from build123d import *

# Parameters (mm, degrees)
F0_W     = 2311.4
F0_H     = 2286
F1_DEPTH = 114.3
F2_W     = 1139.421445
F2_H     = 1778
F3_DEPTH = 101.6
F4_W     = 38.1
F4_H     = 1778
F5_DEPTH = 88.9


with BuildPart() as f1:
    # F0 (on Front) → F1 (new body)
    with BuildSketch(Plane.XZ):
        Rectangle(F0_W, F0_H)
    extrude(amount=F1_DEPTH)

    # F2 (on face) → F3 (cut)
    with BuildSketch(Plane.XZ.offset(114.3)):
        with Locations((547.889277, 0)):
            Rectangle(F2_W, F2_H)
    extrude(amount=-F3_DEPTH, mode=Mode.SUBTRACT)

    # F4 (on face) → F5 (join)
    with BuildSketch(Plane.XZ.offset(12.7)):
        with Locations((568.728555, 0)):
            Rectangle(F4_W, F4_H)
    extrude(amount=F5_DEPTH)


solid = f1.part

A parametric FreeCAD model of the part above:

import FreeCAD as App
import Part
import Sketcher
Q = App.Units.Quantity

doc = App.newDocument("Part")
body = doc.addObject("PartDesign::Body", "Body")

# Sketch on XZ plane
sketch1 = body.newObject("Sketcher::SketchObject", "Sketch")
sketch1.AttachmentSupport = (doc.getObject("XZ_Plane"), [""])
sketch1.MapMode = "FlatFace"
sketch1.addGeometry([
    Part.LineSegment(App.Vector(-1155.7, 1143, 0), App.Vector(-1155.7, -1143, 0)),
    Part.LineSegment(App.Vector(-1155.7, -1143, 0), App.Vector(1155.7, -1143, 0)),
    Part.LineSegment(App.Vector(1155.7, -1143, 0), App.Vector(1155.7, 1143, 0)),
    Part.LineSegment(App.Vector(1155.7, 1143, 0), App.Vector(-1155.7, 1143, 0)),
], False)
sketch1.addConstraint([
    Sketcher.Constraint("Coincident", 0, 2, 1, 1),
    Sketcher.Constraint("Coincident", 1, 2, 2, 1),
    Sketcher.Constraint("Coincident", 2, 2, 3, 1),
    Sketcher.Constraint("Coincident", 3, 2, 0, 1),
    Sketcher.Constraint("Vertical", 0),
    Sketcher.Constraint("Horizontal", 1),
    Sketcher.Constraint("Vertical", 2),
    Sketcher.Constraint("Horizontal", 3),
    Sketcher.Constraint("Symmetric", 0, 2, 2, 2, -1, 1),
    Sketcher.Constraint("DistanceX", 1, 1, 1, 2, Q("91 in")),
    Sketcher.Constraint("DistanceY", 0, 2, 0, 1, Q("90 in")),
])
pad1 = body.newObject("PartDesign::Pad", "Pad")
pad1.Profile = sketch1
pad1.Length = Q("4.5 in")

# Sketch on XZ plane
sketch2 = body.newObject("Sketcher::SketchObject", "Sketch001")
sketch2.AttachmentSupport = (doc.getObject("XZ_Plane"), [""])
sketch2.MapMode = "FlatFace"
sketch2.AttachmentOffset = App.Placement(App.Vector(0, 0, 4.5 * 25.4), App.Rotation())
sketch2.addGeometry([
    Part.LineSegment(App.Vector(-21.821445, 889, 0), App.Vector(-21.821445, -889, 0)),
    Part.LineSegment(App.Vector(-21.821445, -889, 0), App.Vector(1117.599999, -889, 0)),
    Part.LineSegment(App.Vector(1117.599999, -889, 0), App.Vector(1117.599999, 889, 0)),
    Part.LineSegment(App.Vector(1117.599999, 889, 0), App.Vector(-21.821445, 889, 0)),
], False)
sketch2.addConstraint([
    Sketcher.Constraint("Coincident", 0, 2, 1, 1),
    Sketcher.Constraint("Coincident", 1, 2, 2, 1),
    Sketcher.Constraint("Coincident", 2, 2, 3, 1),
    Sketcher.Constraint("Coincident", 3, 2, 0, 1),
    Sketcher.Constraint("Vertical", 0),
    Sketcher.Constraint("Horizontal", 1),
    Sketcher.Constraint("Vertical", 2),
    Sketcher.Constraint("Horizontal", 3),
    Sketcher.Constraint("DistanceY", 0, 2, 0, 1, Q("70 in")),
    Sketcher.Constraint("DistanceY", 0, 2, -1, 1, Q("35 in")),
    Sketcher.Constraint("DistanceX", -1, 1, 1, 2, Q("44 in")),
    Sketcher.Constraint("DistanceX", 1, 1, 1, 2, Q("1139.421445 mm")),
])
pocket1 = body.newObject("PartDesign::Pocket", "Pocket")
pocket1.Profile = sketch2
pocket1.Length = Q("4 in")

# Sketch on XZ plane
sketch3 = body.newObject("Sketcher::SketchObject", "Sketch002")
sketch3.AttachmentSupport = (doc.getObject("XZ_Plane"), [""])
sketch3.MapMode = "FlatFace"
sketch3.AttachmentOffset = App.Placement(App.Vector(0, 0, 0.5 * 25.4), App.Rotation())
sketch3.addGeometry([
    Part.LineSegment(App.Vector(549.678555, 889, 0), App.Vector(549.678555, -889, 0)),
    Part.LineSegment(App.Vector(549.678555, -889, 0), App.Vector(587.778555, -889, 0)),
    Part.LineSegment(App.Vector(587.778555, -889, 0), App.Vector(587.778555, 889, 0)),
    Part.LineSegment(App.Vector(587.778555, 889, 0), App.Vector(549.678555, 889, 0)),
], False)
sketch3.addConstraint([
    Sketcher.Constraint("Coincident", 0, 2, 1, 1),
    Sketcher.Constraint("Coincident", 1, 2, 2, 1),
    Sketcher.Constraint("Coincident", 2, 2, 3, 1),
    Sketcher.Constraint("Coincident", 3, 2, 0, 1),
    Sketcher.Constraint("Vertical", 0),
    Sketcher.Constraint("Horizontal", 1),
    Sketcher.Constraint("Vertical", 2),
    Sketcher.Constraint("Horizontal", 3),
    Sketcher.Constraint("DistanceY", 0, 2, 0, 1, Q("70 in")),
    Sketcher.Constraint("DistanceX", 1, 1, 1, 2, Q("1.5 in")),
    Sketcher.Constraint("DistanceY", 0, 2, -1, 1, Q("35 in")),
    Sketcher.Constraint("DistanceX", -1, 1, 0, 2, Q("549.678555 mm")),
])
pad2 = body.newObject("PartDesign::Pad", "Pad001")
pad2.Profile = sketch3
pad2.Length = Q("3.5 in")

doc.recompute()
